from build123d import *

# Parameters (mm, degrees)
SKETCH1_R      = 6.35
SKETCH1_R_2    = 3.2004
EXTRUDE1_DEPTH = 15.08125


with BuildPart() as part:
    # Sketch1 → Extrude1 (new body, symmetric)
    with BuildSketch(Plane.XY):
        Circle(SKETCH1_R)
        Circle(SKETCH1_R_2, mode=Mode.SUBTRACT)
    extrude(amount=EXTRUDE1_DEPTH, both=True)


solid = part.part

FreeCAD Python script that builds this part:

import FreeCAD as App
import Part
import Sketcher
Q = App.Units.Quantity

doc = App.newDocument("Part")
params = doc.addObject("Spreadsheet::Sheet", "Params")
for row, (alias, value) in enumerate([
    ("sketch1_diameter", "0.5 in"),
    ("sketch1_diameter2", "0.252 in"),
    ("pad1_length", "1.1875 in"),
], start=1):
    params.set(f"A{row}", alias)
    params.set(f"B{row}", "=" + value)
    params.setAlias(f"B{row}", alias)

body = doc.addObject("PartDesign::Body", "Body")

sketch1 = doc.addObject("Sketcher::SketchObject", "Sketch")
body.addObject(sketch1)
sketch1.AttachmentSupport = (doc.XY_Plane, [""])
sketch1.MapMode = "FlatFace"
sketch1.addGeometry([
    Part.Circle(App.Vector(0, 0, 0), App.Vector(0, 0, 1), 6.35),
    Part.Circle(App.Vector(0, 0, 0), App.Vector(0, 0, 1), 3.2004),
], False)
sketch1.addConstraint([
    Sketcher.Constraint("Coincident", 0, 3, -1, 1),
    Sketcher.Constraint("Coincident", 1, 3, -1, 1),
    Sketcher.Constraint("Diameter", 0, Q("0.5 in")),
    Sketcher.Constraint("Diameter", 1, Q("0.252 in")),
])
sketch1.setExpression("Constraints[2]", "Params.sketch1_diameter")
sketch1.setExpression("Constraints[3]", "Params.sketch1_diameter2")
pad1 = doc.addObject("PartDesign::Pad", "Pad")
body.addObject(pad1)
pad1.Profile = sketch1
pad1.setExpression("Length", "Params.pad1_length")
pad1.Midplane = True

doc.recompute()
